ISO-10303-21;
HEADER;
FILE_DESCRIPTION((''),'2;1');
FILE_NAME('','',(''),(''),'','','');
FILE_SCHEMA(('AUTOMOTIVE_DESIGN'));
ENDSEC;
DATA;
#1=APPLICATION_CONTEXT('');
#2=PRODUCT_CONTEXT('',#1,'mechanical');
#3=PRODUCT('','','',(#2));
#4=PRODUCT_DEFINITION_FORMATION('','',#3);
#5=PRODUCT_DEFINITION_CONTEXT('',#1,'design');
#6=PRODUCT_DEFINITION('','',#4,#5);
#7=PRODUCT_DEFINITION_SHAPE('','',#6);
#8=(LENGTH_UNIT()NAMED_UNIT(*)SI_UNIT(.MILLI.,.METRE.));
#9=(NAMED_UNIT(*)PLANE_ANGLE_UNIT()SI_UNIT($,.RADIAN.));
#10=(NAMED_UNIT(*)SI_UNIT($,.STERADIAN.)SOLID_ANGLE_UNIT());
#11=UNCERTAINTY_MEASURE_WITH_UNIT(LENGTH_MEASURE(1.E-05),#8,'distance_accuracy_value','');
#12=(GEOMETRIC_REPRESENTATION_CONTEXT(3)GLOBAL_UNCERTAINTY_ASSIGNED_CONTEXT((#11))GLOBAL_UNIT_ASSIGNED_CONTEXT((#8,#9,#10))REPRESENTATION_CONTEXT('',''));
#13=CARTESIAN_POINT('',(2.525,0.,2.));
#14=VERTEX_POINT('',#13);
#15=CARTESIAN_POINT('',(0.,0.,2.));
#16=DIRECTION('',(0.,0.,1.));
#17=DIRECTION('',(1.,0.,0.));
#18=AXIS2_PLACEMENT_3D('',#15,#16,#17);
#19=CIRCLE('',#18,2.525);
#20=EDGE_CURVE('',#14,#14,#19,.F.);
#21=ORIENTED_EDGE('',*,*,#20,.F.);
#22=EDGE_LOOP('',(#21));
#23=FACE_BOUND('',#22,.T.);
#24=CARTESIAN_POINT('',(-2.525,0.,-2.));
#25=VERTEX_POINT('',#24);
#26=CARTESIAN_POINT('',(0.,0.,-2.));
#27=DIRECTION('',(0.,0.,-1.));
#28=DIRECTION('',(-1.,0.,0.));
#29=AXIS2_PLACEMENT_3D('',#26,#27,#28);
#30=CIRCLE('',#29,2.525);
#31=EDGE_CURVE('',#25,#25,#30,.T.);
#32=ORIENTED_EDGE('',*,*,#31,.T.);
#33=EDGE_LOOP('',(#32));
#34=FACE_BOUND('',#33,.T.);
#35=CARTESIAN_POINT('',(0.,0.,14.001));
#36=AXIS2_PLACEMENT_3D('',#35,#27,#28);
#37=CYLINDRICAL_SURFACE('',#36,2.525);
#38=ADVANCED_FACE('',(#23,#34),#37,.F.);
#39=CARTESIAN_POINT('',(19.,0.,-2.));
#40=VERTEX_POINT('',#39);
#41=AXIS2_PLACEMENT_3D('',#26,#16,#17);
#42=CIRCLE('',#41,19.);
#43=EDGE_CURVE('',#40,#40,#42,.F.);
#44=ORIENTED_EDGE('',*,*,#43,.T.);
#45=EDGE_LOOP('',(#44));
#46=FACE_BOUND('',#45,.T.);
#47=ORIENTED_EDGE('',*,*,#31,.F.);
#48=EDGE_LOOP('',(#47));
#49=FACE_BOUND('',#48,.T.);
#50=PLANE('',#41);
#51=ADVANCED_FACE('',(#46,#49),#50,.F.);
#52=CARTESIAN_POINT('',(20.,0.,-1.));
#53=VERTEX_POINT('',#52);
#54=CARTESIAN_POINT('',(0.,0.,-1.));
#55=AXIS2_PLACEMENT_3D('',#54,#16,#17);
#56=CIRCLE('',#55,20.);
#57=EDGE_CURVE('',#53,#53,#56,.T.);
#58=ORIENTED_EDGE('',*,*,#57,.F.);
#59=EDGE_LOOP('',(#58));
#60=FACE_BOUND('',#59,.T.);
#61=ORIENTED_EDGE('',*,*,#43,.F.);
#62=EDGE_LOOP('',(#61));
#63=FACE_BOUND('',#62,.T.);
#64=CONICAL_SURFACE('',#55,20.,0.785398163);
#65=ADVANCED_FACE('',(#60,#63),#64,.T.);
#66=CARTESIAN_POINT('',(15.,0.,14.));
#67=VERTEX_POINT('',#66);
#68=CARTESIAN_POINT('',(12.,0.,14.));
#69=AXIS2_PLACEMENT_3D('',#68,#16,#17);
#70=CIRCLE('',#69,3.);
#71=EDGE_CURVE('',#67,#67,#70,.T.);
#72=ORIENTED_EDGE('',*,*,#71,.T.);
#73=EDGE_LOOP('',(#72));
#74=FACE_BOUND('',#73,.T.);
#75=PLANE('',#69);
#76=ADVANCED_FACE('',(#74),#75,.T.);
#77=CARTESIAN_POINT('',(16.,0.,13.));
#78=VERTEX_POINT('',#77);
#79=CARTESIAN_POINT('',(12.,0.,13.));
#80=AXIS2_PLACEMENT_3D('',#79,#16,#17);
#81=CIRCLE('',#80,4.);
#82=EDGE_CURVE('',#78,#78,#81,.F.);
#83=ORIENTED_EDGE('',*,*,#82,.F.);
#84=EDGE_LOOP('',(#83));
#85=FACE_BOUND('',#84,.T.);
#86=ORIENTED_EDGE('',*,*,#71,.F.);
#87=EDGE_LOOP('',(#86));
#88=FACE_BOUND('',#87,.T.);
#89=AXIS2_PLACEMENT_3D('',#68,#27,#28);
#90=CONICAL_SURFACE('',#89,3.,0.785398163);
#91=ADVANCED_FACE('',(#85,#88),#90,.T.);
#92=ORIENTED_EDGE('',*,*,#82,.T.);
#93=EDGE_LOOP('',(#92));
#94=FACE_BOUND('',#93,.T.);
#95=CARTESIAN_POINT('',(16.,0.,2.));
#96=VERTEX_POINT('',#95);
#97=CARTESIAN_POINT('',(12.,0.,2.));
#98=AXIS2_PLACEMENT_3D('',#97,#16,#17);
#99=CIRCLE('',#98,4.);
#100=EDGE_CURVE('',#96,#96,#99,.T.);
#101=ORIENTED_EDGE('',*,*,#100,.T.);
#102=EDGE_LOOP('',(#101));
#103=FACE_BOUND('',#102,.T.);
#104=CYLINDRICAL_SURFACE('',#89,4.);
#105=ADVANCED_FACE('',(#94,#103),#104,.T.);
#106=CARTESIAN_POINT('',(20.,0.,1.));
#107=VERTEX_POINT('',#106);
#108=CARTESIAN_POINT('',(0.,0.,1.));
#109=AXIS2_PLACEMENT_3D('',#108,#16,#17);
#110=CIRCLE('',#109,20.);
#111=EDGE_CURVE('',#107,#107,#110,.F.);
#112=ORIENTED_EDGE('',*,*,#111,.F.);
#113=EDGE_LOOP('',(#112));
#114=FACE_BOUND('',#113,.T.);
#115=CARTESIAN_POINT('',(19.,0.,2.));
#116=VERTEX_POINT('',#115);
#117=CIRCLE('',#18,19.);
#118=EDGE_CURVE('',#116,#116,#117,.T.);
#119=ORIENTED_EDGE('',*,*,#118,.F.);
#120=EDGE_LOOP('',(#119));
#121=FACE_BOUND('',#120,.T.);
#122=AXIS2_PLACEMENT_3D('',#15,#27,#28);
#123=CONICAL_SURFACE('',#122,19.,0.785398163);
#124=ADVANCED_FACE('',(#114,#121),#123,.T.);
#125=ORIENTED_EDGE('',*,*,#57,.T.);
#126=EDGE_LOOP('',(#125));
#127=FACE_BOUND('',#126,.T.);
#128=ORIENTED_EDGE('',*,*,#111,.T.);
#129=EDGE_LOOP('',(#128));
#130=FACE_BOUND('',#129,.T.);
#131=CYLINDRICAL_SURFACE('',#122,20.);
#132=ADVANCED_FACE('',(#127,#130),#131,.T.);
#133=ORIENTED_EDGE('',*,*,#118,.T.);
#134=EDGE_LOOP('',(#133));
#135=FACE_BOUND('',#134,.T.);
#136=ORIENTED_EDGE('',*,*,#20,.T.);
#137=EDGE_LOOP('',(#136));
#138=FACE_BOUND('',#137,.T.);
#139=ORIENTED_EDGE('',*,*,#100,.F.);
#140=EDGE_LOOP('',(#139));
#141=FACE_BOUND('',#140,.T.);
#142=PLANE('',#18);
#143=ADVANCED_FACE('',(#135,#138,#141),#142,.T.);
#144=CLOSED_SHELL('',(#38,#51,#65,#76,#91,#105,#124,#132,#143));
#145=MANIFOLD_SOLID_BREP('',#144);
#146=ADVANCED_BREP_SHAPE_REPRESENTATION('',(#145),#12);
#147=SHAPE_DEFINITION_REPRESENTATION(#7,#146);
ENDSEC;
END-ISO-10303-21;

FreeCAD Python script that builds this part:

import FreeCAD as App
import Part
import Sketcher
from FreeCAD import Vector
Q = App.Units.Quantity


def edges_at(feature, points):
    """Names of the edges that pass closest to the given points."""
    edges = feature.Shape.Edges
    near = lambda p: min(range(len(edges)), key=lambda i: edges[i].distToShape(Part.Vertex(*p))[0])
    return sorted({f"Edge{near(p) + 1}" for p in points})

doc = App.newDocument("Part")
params = doc.addObject("Spreadsheet::Sheet", "Params")
for row, (alias, value) in enumerate([
    ("sketch1_diameter", "40 mm"),
    ("pad1_length", "4 mm"),
    ("sketch2_diameter", "8 mm"),
    ("pad2_length", "12 mm"),
    ("sketch3_diameter", "5.05 mm"),
    ("chamfer_size", "1 mm"),
], start=1):
    params.set(f"A{row}", alias)
    params.set(f"B{row}", "=" + value)
    params.setAlias(f"B{row}", alias)

body = doc.addObject("PartDesign::Body", "Body")

sketch1 = doc.addObject("Sketcher::SketchObject", "Sketch")
body.addObject(sketch1)
sketch1.AttachmentSupport = (doc.XY_Plane, [""])
sketch1.MapMode = "FlatFace"
sketch1.addGeometry(Part.Circle(Vector(0, 0, 0), Vector(0, 0, 1), 20), False)
sketch1.addConstraint([
    Sketcher.Constraint("Coincident", 0, 3, -1, 1),
    Sketcher.Constraint("Diameter", 0, Q("40 mm")),
])
sketch1.setExpression("Constraints[1]", "Params.sketch1_diameter")
pad1 = doc.addObject("PartDesign::Pad", "Pad")
body.addObject(pad1)
pad1.Profile = sketch1
pad1.setExpression("Length", "Params.pad1_length")
pad1.Midplane = True

sketch2 = doc.addObject("Sketcher::SketchObject", "Sketch001")
body.addObject(sketch2)
sketch2.AttachmentSupport = (doc.XY_Plane, [""])
sketch2.MapMode = "FlatFace"
sketch2.AttachmentOffset = App.Placement(Vector(0, 0, 2), App.Rotation())
sketch2.addGeometry(Part.Circle(Vector(12, 0, 0), Vector(0, 0, 1), 4), False)
sketch2.addConstraint([
    Sketcher.Constraint("PointOnObject", 0, 3, -1),
    Sketcher.Constraint("Diameter", 0, Q("8 mm")),
    Sketcher.Constraint("DistanceX", -1, 1, 0, 3, Q("12 mm")),
])
sketch2.setExpression("Constraints[1]", "Params.sketch2_diameter")
pad2 = doc.addObject("PartDesign::Pad", "Pad001")
body.addObject(pad2)
pad2.Profile = sketch2
pad2.setExpression("Length", "Params.pad2_length")

sketch3 = doc.addObject("Sketcher::SketchObject", "Sketch002")
body.addObject(sketch3)
sketch3.AttachmentSupport = (doc.XY_Plane, [""])
sketch3.MapMode = "FlatFace"
sketch3.AttachmentOffset = App.Placement(Vector(0, 0, -2), App.Rotation())
sketch3.addGeometry(Part.Circle(Vector(0, 0, 0), Vector(0, 0, 1), 2.5), False)
sketch3.addConstraint([
    Sketcher.Constraint("Coincident", 0, 3, -1, 1),
    Sketcher.Constraint("Diameter", 0, Q("5.05 mm")),
])
sketch3.setExpression("Constraints[1]", "Params.sketch3_diameter")
pocket1 = doc.addObject("PartDesign::Pocket", "Pocket")
body.addObject(pocket1)
pocket1.Profile = sketch3
pocket1.Type = "UpToFirst"
pocket1.Reversed = True
doc.recompute()

chamfer = doc.addObject("PartDesign::Chamfer", "Chamfer")
body.addObject(chamfer)
chamfer.Base = (pocket1, edges_at(pocket1, [(-20, 0, -2), (-20, 0, 2), (8, 0, 14)]))
chamfer.setExpression("Size", "Params.chamfer_size")

doc.recompute()
